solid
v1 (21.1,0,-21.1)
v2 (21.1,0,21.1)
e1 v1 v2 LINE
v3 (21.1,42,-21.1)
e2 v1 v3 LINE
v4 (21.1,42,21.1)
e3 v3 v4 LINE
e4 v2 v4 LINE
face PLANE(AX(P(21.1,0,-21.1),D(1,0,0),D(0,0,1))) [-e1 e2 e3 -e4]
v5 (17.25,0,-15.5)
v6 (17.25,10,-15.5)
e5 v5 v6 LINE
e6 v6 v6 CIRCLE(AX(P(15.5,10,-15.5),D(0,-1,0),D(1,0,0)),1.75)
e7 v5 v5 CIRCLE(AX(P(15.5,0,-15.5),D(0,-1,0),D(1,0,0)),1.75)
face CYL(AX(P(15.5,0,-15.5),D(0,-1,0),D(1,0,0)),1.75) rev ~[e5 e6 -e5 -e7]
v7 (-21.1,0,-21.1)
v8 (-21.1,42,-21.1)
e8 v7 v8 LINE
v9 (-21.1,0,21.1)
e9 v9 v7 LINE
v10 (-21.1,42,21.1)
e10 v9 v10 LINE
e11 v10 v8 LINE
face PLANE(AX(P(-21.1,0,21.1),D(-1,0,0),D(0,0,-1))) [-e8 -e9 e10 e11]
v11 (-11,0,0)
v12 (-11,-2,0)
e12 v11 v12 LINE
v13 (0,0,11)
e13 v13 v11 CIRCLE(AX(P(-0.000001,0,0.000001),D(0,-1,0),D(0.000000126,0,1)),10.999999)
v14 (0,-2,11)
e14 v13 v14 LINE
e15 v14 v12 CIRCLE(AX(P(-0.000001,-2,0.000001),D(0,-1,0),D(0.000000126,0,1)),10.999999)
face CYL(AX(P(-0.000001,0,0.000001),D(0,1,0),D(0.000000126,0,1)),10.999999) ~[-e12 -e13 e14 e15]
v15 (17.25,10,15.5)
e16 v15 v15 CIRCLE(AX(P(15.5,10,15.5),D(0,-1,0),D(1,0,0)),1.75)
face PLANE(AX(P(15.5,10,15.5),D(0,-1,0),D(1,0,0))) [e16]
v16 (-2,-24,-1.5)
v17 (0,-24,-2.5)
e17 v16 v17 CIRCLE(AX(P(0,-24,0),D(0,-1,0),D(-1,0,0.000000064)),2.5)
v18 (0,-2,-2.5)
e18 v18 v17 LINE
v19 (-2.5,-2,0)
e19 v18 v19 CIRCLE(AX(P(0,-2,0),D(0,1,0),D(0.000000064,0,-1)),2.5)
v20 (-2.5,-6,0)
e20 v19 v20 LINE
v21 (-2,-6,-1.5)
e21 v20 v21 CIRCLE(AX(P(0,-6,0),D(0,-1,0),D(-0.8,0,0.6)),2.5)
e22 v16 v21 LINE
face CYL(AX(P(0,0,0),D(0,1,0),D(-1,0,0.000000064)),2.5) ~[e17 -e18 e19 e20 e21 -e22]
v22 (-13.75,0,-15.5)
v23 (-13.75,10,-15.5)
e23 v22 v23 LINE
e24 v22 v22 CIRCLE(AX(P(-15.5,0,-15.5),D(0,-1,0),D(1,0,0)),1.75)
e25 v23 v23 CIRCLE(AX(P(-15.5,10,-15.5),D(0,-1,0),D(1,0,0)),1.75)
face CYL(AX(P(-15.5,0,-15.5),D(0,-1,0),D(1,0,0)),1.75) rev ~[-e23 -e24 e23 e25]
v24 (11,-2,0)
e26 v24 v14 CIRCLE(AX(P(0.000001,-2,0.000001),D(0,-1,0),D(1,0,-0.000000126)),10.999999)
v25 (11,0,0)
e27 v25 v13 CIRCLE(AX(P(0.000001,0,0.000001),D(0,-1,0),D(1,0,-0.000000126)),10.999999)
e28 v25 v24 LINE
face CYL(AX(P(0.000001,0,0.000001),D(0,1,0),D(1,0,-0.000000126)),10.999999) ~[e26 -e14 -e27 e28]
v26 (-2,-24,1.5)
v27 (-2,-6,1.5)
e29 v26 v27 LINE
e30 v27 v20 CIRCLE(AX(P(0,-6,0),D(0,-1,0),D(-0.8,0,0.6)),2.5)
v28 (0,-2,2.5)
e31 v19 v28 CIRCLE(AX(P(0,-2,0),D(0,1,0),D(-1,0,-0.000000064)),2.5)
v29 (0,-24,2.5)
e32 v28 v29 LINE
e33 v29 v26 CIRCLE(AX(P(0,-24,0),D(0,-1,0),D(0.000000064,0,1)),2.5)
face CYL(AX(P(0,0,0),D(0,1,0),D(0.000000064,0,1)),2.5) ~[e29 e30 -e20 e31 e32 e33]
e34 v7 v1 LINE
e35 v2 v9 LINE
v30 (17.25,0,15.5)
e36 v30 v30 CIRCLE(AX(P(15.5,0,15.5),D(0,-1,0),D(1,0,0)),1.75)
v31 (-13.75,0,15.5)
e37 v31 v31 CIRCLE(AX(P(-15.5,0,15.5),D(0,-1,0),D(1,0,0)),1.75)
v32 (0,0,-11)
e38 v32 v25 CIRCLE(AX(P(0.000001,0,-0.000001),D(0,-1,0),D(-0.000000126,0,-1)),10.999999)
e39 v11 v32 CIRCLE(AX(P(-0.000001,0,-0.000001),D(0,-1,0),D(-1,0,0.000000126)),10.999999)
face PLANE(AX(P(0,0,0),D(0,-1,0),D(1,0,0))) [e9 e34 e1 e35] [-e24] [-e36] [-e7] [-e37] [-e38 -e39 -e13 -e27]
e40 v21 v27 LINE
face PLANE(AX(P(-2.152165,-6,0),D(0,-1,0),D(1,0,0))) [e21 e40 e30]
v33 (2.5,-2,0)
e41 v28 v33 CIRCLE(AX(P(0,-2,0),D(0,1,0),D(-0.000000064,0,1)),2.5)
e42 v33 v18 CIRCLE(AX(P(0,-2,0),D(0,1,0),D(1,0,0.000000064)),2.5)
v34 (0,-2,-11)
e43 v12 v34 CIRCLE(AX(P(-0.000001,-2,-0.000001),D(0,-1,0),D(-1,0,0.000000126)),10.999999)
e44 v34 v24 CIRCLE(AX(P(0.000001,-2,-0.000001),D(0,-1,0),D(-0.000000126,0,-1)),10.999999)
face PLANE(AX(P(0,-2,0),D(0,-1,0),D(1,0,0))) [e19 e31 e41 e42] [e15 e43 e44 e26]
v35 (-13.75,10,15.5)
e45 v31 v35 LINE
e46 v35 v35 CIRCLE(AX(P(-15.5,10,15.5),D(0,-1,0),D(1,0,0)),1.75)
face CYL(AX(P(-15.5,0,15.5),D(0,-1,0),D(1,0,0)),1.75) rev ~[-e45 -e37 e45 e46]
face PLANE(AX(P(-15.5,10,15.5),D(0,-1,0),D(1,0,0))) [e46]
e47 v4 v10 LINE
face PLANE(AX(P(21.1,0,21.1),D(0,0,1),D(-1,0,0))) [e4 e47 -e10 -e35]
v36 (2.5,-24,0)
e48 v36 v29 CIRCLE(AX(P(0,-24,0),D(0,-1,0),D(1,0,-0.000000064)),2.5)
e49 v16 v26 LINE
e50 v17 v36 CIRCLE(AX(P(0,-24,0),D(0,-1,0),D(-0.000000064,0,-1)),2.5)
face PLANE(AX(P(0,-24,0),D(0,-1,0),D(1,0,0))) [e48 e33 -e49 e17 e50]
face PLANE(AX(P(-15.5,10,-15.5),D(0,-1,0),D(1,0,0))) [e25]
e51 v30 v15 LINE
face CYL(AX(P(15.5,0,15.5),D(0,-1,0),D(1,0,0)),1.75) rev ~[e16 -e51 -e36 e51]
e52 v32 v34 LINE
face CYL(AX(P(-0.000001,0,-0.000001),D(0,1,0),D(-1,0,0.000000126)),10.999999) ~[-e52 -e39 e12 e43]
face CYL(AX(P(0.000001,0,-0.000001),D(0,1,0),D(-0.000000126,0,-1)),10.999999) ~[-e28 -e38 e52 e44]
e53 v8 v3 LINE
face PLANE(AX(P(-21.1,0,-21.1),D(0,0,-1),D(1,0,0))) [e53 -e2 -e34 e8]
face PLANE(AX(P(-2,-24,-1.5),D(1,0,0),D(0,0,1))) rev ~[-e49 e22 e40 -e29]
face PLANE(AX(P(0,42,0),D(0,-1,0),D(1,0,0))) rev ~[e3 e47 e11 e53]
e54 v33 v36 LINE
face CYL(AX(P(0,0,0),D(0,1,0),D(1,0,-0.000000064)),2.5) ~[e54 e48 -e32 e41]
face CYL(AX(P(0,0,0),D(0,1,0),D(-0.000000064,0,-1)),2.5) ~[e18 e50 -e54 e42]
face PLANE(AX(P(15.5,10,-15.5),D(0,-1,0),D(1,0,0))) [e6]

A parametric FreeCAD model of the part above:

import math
import FreeCAD as App
import Part
import Sketcher
from FreeCAD import Vector

doc = App.newDocument("Part")
params = doc.addObject("Spreadsheet::Sheet", "Params")
for row, (alias, value) in enumerate([
    ("sketch1_width", "42.2 mm"),
    ("pad1_length", "42 mm"),
    ("sketch2_radius", "10.999999 mm"),
    ("sketch2_radius2", "2.5 mm"),
    ("pad2_length", "2 mm"),
    ("sketch3_radius", "2.5 mm"),
    ("pad3_length", "24 mm"),
    ("sketch4_diameter", "3.5 mm"),
    ("pocket1_length", "10 mm"),
    ("sketch5_radius", "2.5 mm"),
    ("sketch5_height", "3 mm"),
    ("pocket2_length", "18 mm"),
], start=1):
    params.set(f"A{row}", alias)
    params.set(f"B{row}", "=" + value)
    params.setAlias(f"B{row}", alias)

body = doc.addObject("PartDesign::Body", "Body")

# Sketch on XZ plane
sketch1 = body.newObject("Sketcher::SketchObject", "Sketch")
sketch1.AttachmentSupport = (doc.getObject("XZ_Plane"), [""])
sketch1.MapMode = "FlatFace"
sketch1.addGeometry([
    Part.LineSegment(Vector(21, 21, 0), Vector(-21, 21, 0)),
    Part.LineSegment(Vector(-21, 21, 0), Vector(-21, -21, 0)),
    Part.LineSegment(Vector(-21, -21, 0), Vector(21, -21, 0)),
    Part.LineSegment(Vector(21, -21, 0), Vector(21, 21, 0)),
], False)
sketch1.addConstraint([
    Sketcher.Constraint("Coincident", 0, 2, 1, 1),
    Sketcher.Constraint("Coincident", 1, 2, 2, 1),
    Sketcher.Constraint("Coincident", 2, 2, 3, 1),
    Sketcher.Constraint("Coincident", 3, 2, 0, 1),
    Sketcher.Constraint("Horizontal", 0),
    Sketcher.Constraint("Vertical", 1),
    Sketcher.Constraint("Horizontal", 2),
    Sketcher.Constraint("Vertical", 3),
    Sketcher.Constraint("Symmetric", 0, 2, 2, 2, -1, 1),
    Sketcher.Constraint("Equal", 2, 1),
    Sketcher.Constraint("DistanceX", 0, 2, 0, 1, 42.2),
])
sketch1.setExpression("Constraints[10]", "Params.sketch1_width")
pad1 = body.newObject("PartDesign::Pad", "Pad")
pad1.Profile = sketch1
pad1.setExpression("Length", "Params.pad1_length")
pad1.Reversed = True

# Sketch on XZ plane
sketch2 = body.newObject("Sketcher::SketchObject", "Sketch001")
sketch2.AttachmentSupport = (doc.getObject("XZ_Plane"), [""])
sketch2.MapMode = "FlatFace"
sketch2.addGeometry([
    Part.ArcOfCircle(Part.Circle(Vector(0, 0, 0), Vector(0, 0, 1), 11), math.radians(-90), math.radians(0)),  # 0
    Part.ArcOfCircle(Part.Circle(Vector(0, 0, 0), Vector(0, 0, 1), 11), math.radians(0), math.radians(90)),  # 1
    Part.ArcOfCircle(Part.Circle(Vector(0, 0, 0), Vector(0, 0, 1), 11), math.radians(90), math.radians(180)),  # 2
    Part.ArcOfCircle(Part.Circle(Vector(0, 0, 0), Vector(0, 0, 1), 11), math.radians(180), math.radians(270)),  # 3
    Part.ArcOfCircle(Part.Circle(Vector(0, 0, 0), Vector(0, 0, 1), 2.5), math.radians(90), math.radians(180)),  # 4
    Part.ArcOfCircle(Part.Circle(Vector(0, 0, 0), Vector(0, 0, 1), 2.5), math.radians(0), math.radians(90)),  # 5
    Part.ArcOfCircle(Part.Circle(Vector(0, 0, 0), Vector(0, 0, 1), 2.5), math.radians(-90), math.radians(0)),  # 6
    Part.ArcOfCircle(Part.Circle(Vector(0, 0, 0), Vector(0, 0, 1), 2.5), math.radians(180), math.radians(270)),  # 7
], False)
sketch2.addConstraint([
    Sketcher.Constraint("Tangent", 0, 2, 1, 1),
    Sketcher.Constraint("Tangent", 1, 2, 2, 1),
    Sketcher.Constraint("Tangent", 2, 2, 3, 1),
    Sketcher.Constraint("Tangent", 3, 2, 0, 1),
    Sketcher.Constraint("Tangent", 4, 1, 5, 2),
    Sketcher.Constraint("Tangent", 5, 1, 6, 2),
    Sketcher.Constraint("Tangent", 6, 1, 7, 2),
    Sketcher.Constraint("Tangent", 7, 1, 4, 2),
    Sketcher.Constraint("Coincident", 0, 3, -1, 1),
    Sketcher.Constraint("Coincident", 4, 3, -1, 1),
    Sketcher.Constraint("Equal", 0, 1),
    Sketcher.Constraint("Equal", 4, 5),
    Sketcher.Constraint("PointOnObject", 0, 2, -1),
    Sketcher.Constraint("PointOnObject", 1, 2, -2),
    Sketcher.Constraint("PointOnObject", 2, 2, -1),
    Sketcher.Constraint("PointOnObject", 3, 2, -2),
    Sketcher.Constraint("PointOnObject", 4, 1, -2),
    Sketcher.Constraint("PointOnObject", 5, 1, -1),
    Sketcher.Constraint("PointOnObject", 6, 1, -2),
    Sketcher.Constraint("PointOnObject", 7, 1, -1),
    Sketcher.Constraint("Radius", 0, 10.999999),
    Sketcher.Constraint("Radius", 4, 2.5),
])
sketch2.setExpression("Constraints[20]", "Params.sketch2_radius")
sketch2.setExpression("Constraints[21]", "Params.sketch2_radius2")
pad2 = body.newObject("PartDesign::Pad", "Pad001")
pad2.Profile = sketch2
pad2.setExpression("Length", "Params.pad2_length")

# Sketch on XZ plane
sketch3 = body.newObject("Sketcher::SketchObject", "Sketch002")
sketch3.AttachmentSupport = (doc.getObject("XZ_Plane"), [""])
sketch3.MapMode = "FlatFace"
sketch3.addGeometry([
    Part.ArcOfCircle(Part.Circle(Vector(0, 0, 0), Vector(0, 0, 1), 2.5), math.radians(-90), math.radians(0)),
    Part.ArcOfCircle(Part.Circle(Vector(0, 0, 0), Vector(0, 0, 1), 2.5), math.radians(0), math.radians(90)),
    Part.ArcOfCircle(Part.Circle(Vector(0, 0, 0), Vector(0, 0, 1), 2.5), math.radians(90), math.radians(180)),
    Part.ArcOfCircle(Part.Circle(Vector(0, 0, 0), Vector(0, 0, 1), 2.5), math.radians(180), math.radians(270)),
], False)
sketch3.addConstraint([
    Sketcher.Constraint("Tangent", 0, 2, 1, 1),
    Sketcher.Constraint("Tangent", 1, 2, 2, 1),
    Sketcher.Constraint("Tangent", 2, 2, 3, 1),
    Sketcher.Constraint("Tangent", 3, 2, 0, 1),
    Sketcher.Constraint("Coincident", 0, 3, -1, 1),
    Sketcher.Constraint("Equal", 0, 1),
    Sketcher.Constraint("PointOnObject", 0, 2, -1),
    Sketcher.Constraint("PointOnObject", 1, 2, -2),
    Sketcher.Constraint("PointOnObject", 2, 2, -1),
    Sketcher.Constraint("PointOnObject", 3, 2, -2),
    Sketcher.Constraint("Radius", 0, 2.5),
])
sketch3.setExpression("Constraints[10]", "Params.sketch3_radius")
pad3 = body.newObject("PartDesign::Pad", "Pad002")
pad3.Profile = sketch3
pad3.setExpression("Length", "Params.pad3_length")

# Sketch on XZ plane
sketch4 = body.newObject("Sketcher::SketchObject", "Sketch003")
sketch4.AttachmentSupport = (doc.getObject("XZ_Plane"), [""])
sketch4.MapMode = "FlatFace"
sketch4.addGeometry([
    Part.Circle(Vector(-15.5, 15.5, 0), Vector(0, 0, 1), 1.8),
    Part.Circle(Vector(15.5, -15.5, 0), Vector(0, 0, 1), 1.8),
    Part.Circle(Vector(-15.5, -15.5, 0), Vector(0, 0, 1), 1.8),
    Part.Circle(Vector(15.5, 15.5, 0), Vector(0, 0, 1), 1.8),
], False)
sketch4.addConstraint([
    Sketcher.Constraint("Equal", 0, 1),
    Sketcher.Constraint("Equal", 1, 2),
    Sketcher.Constraint("Equal", 2, 3),
    Sketcher.Constraint("Symmetric", 0, 3, 1, 3, -1, 1),
    Sketcher.Constraint("Symmetric", 2, 3, 3, 3, -1, 1),
    Sketcher.Constraint("Symmetric", 1, 3, 2, 3, -2),
    Sketcher.Constraint("Diameter", 0, 3.5),
    Sketcher.Constraint("DistanceX", 0, 3, 1, 3, 31.0),
    Sketcher.Constraint("DistanceY", 1, 3, 0, 3, 31.0),
])
sketch4.setExpression("Constraints[6]", "Params.sketch4_diameter")
pocket1 = body.newObject("PartDesign::Pocket", "Pocket")
pocket1.Profile = sketch4
pocket1.setExpression("Length", "Params.pocket1_length")

# Sketch on XZ plane
sketch5 = body.newObject("Sketcher::SketchObject", "Sketch004")
sketch5.AttachmentSupport = (doc.getObject("XZ_Plane"), [""])
sketch5.MapMode = "FlatFace"
sketch5.AttachmentOffset = App.Placement(Vector(0, 0, 24), App.Rotation())
sketch5.addGeometry([
    Part.ArcOfCircle(Part.Circle(Vector(0, 0, 0), Vector(0, 0, 1), 2.5), math.radians(143), math.radians(217)),
    Part.LineSegment(Vector(-2, -1.5, 0), Vector(-2, 1.5, 0)),
], False)
sketch5.addConstraint([
    Sketcher.Constraint("Coincident", 0, 1, 1, 2),
    Sketcher.Constraint("Coincident", 1, 1, 0, 2),
    Sketcher.Constraint("Vertical", 1),
    Sketcher.Constraint("Coincident", 0, 3, -1, 1),
    Sketcher.Constraint("Radius", 0, 2.5),
    Sketcher.Constraint("DistanceY", 1, 1, 1, 2, 3.0),
])
sketch5.setExpression("Constraints[4]", "Params.sketch5_radius")
sketch5.setExpression("Constraints[5]", "Params.sketch5_height")
pocket2 = body.newObject("PartDesign::Pocket", "Pocket001")
pocket2.Profile = sketch5
pocket2.setExpression("Length", "Params.pocket2_length")

doc.recompute()
